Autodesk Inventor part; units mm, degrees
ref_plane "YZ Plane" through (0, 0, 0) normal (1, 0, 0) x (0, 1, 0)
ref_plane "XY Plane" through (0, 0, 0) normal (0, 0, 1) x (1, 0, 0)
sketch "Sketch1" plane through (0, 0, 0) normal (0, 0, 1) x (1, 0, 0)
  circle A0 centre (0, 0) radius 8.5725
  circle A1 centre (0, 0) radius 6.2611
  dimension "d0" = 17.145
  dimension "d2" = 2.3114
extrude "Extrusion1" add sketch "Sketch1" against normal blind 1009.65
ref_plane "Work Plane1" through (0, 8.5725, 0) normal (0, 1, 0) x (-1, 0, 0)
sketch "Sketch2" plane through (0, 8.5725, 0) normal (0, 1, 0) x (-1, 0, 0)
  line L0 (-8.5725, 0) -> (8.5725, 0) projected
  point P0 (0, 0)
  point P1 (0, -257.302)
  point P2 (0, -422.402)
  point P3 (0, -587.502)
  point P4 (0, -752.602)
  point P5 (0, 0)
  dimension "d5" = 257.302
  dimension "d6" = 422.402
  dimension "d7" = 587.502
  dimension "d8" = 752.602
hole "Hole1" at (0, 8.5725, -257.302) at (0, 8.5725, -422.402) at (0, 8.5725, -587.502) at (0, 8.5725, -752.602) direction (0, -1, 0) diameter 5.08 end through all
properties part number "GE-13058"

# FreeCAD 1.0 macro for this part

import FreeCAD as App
import Part
import Sketcher

V = App.Vector
Q = App.Units.Quantity

doc = App.newDocument("Part")
params = doc.addObject("Spreadsheet::Sheet", "Params")
for row, (alias, value) in enumerate([
    ("sketch1_diameter", "0.675 in"),
    ("sketch1_diameter2", "0.493 in"),
    ("pad1_length", "39.75 in"),
    ("sketch2_diameter", "0.2 in"),
    ("hole_diameter", "0.2 in"),
], start=1):
    params.set(f"A{row}", alias)
    params.set(f"B{row}", "=" + value)
    params.setAlias(f"B{row}", alias)

body = doc.addObject("PartDesign::Body", "Body")

sketch1 = body.newObject("Sketcher::SketchObject", "Sketch")
sketch1.AttachmentSupport = (doc.getObject("XY_Plane"), [""])
sketch1.MapMode = "FlatFace"
sketch1.addGeometry(Part.Circle(V(0, 0, 0), V(0, 0, 1), 8.5725), False)
sketch1.addGeometry(Part.Circle(V(0, 0, 0), V(0, 0, 1), 6.2611), False)
sketch1.addConstraint(Sketcher.Constraint("Coincident", 0, 3, -1, 1))
sketch1.addConstraint(Sketcher.Constraint("Coincident", 1, 3, -1, 1))
sketch1.addConstraint(Sketcher.Constraint("Diameter", 0, Q("0.675 in")))
sketch1.addConstraint(Sketcher.Constraint("Diameter", 1, Q("0.493 in")))
sketch1.setExpression("Constraints[2]", "Params.sketch1_diameter")
sketch1.setExpression("Constraints[3]", "Params.sketch1_diameter2")
pad1 = body.newObject("PartDesign::Pad", "Pad")
pad1.Profile = sketch1
pad1.setExpression("Length", "Params.pad1_length")
pad1.Reversed = True

sketch2 = body.newObject("Sketcher::SketchObject", "Sketch001")
sketch2.AttachmentSupport = (doc.getObject("XZ_Plane"), [""])
sketch2.MapMode = "FlatFace"
sketch2.AttachmentOffset = App.Placement(V(0, 0, -0.3375 * 25.4), App.Rotation())
sketch2.addGeometry(Part.Circle(V(0, -257.302, 0), V(0, 0, 1), 2.54), False)
sketch2.addGeometry(Part.Circle(V(0, -422.402, 0), V(0, 0, 1), 2.54), False)
sketch2.addGeometry(Part.Circle(V(0, -587.502, 0), V(0, 0, 1), 2.54), False)
sketch2.addGeometry(Part.Circle(V(0, -752.602, 0), V(0, 0, 1), 2.54), False)
sketch2.addConstraint(Sketcher.Constraint("Equal", 0, 1))
sketch2.addConstraint(Sketcher.Constraint("Equal", 1, 2))
sketch2.addConstraint(Sketcher.Constraint("Equal", 2, 3))
sketch2.addConstraint(Sketcher.Constraint("PointOnObject", 0, 3, -2))
sketch2.addConstraint(Sketcher.Constraint("PointOnObject", 1, 3, -2))
sketch2.addConstraint(Sketcher.Constraint("PointOnObject", 2, 3, -2))
sketch2.addConstraint(Sketcher.Constraint("PointOnObject", 3, 3, -2))
sketch2.addConstraint(Sketcher.Constraint("Diameter", 0, Q("0.2 in")))
sketch2.addConstraint(Sketcher.Constraint("DistanceY", 2, 3, 0, 3, Q("13 in")))
sketch2.addConstraint(Sketcher.Constraint("DistanceY", 3, 3, 1, 3, Q("13 in")))
sketch2.addConstraint(Sketcher.Constraint("DistanceY", 1, 3, 0, 3, Q("6.5 in")))
sketch2.addConstraint(Sketcher.Constraint("DistanceY", 0, 3, -1, 1, Q("10.13 in")))
sketch2.setExpression("Constraints[7]", "Params.sketch2_diameter")
doc.recompute()
hole = body.newObject("PartDesign::Hole", "Hole")
hole.Profile = sketch2
hole.ThreadType = "None"
hole.setExpression("Diameter", "Params.hole_diameter")
hole.DepthType = "ThroughAll"
hole.Reversed = True

doc.recompute()
